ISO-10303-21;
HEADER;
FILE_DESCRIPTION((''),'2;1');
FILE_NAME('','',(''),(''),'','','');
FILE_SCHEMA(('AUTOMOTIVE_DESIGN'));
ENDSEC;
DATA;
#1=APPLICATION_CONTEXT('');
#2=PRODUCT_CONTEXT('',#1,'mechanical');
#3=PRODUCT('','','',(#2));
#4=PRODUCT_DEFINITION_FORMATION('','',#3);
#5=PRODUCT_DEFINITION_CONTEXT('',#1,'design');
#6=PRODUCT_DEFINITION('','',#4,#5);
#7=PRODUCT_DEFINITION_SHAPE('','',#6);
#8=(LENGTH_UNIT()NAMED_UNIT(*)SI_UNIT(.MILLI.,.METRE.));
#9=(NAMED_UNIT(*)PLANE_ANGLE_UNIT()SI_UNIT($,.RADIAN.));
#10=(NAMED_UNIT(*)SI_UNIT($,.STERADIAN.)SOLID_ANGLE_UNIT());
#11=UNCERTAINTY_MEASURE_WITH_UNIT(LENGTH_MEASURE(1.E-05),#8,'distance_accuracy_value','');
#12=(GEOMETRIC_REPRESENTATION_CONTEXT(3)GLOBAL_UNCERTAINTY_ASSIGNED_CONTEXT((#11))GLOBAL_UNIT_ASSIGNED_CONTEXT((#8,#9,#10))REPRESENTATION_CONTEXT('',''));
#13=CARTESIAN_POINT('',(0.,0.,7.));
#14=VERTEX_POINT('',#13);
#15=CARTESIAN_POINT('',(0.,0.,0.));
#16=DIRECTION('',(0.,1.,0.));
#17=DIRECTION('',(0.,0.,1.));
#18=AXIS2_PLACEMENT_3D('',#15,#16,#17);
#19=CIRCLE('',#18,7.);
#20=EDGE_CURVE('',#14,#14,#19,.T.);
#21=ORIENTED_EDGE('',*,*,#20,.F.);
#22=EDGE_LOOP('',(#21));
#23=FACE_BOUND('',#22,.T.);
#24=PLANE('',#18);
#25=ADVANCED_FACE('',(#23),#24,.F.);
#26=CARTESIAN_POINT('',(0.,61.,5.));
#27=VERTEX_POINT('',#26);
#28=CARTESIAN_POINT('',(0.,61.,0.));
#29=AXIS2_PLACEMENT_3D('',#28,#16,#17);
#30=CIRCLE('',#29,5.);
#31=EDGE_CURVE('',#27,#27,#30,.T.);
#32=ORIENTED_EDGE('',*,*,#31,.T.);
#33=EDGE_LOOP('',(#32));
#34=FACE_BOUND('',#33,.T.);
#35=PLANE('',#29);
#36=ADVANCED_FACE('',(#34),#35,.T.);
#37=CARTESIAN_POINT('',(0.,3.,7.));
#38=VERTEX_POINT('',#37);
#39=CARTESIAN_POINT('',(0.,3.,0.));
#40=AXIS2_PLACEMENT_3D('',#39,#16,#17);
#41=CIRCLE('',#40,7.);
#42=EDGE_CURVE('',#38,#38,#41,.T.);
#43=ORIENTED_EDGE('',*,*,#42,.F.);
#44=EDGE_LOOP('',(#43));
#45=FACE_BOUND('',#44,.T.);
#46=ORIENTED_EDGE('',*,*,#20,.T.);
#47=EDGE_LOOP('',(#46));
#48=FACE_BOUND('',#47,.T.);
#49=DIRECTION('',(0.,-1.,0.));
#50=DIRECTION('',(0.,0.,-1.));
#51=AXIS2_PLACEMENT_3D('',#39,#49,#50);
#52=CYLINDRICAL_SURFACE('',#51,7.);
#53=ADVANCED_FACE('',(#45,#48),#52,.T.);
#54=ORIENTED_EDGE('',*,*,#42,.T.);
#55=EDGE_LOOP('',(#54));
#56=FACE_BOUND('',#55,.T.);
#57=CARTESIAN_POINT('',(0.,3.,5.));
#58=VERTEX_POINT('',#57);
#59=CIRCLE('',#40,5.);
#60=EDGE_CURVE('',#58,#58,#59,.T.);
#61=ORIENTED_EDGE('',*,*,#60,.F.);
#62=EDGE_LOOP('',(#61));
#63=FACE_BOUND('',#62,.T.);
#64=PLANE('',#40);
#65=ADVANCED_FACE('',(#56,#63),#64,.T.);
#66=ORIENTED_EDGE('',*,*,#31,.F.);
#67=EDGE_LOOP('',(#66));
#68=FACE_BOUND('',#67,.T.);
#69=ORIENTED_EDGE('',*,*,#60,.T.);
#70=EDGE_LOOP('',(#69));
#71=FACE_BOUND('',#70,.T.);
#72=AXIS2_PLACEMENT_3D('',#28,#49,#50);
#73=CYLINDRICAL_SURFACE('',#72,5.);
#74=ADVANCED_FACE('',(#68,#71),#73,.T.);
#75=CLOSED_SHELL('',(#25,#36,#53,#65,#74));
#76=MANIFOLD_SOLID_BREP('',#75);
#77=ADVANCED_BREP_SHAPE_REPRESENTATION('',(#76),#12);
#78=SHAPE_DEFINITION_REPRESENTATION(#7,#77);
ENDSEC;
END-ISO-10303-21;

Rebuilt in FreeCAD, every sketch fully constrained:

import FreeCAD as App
import Part
import Sketcher

doc = App.newDocument("Part")
params = doc.addObject("Spreadsheet::Sheet", "Params")
for row, (alias, value) in enumerate([
    ("sketch1_diameter", "14 mm"),
    ("pad1_length", "3 mm"),
    ("sketch2_diameter", "10 mm"),
    ("pad2_length", "58 mm"),
], start=1):
    params.set(f"A{row}", alias)
    params.set(f"B{row}", "=" + value)
    params.setAlias(f"B{row}", alias)

body = doc.addObject("PartDesign::Body", "Body")

# Sketch on XZ plane
sketch1 = doc.addObject("Sketcher::SketchObject", "Sketch")
body.addObject(sketch1)
sketch1.AttachmentSupport = (doc.XZ_Plane, [""])
sketch1.MapMode = "FlatFace"
sketch1.addGeometry(Part.Circle(App.Vector(0, 0, 0), App.Vector(0, 0, 1), 7), False)
sketch1.addConstraint([
    Sketcher.Constraint("Coincident", 0, 3, -1, 1),
    Sketcher.Constraint("Diameter", 0, 14.0),
])
sketch1.setExpression("Constraints[1]", "Params.sketch1_diameter")
pad1 = doc.addObject("PartDesign::Pad", "Pad")
body.addObject(pad1)
pad1.Profile = sketch1
pad1.setExpression("Length", "Params.pad1_length")
pad1.Reversed = True

# Sketch on XZ plane
sketch2 = doc.addObject("Sketcher::SketchObject", "Sketch001")
body.addObject(sketch2)
sketch2.AttachmentSupport = (doc.XZ_Plane, [""])
sketch2.MapMode = "FlatFace"
sketch2.AttachmentOffset = App.Placement(App.Vector(0, 0, -3), App.Rotation())
sketch2.addGeometry(Part.Circle(App.Vector(0, 0, 0), App.Vector(0, 0, 1), 5), False)
sketch2.addConstraint([
    Sketcher.Constraint("Coincident", 0, 3, -1, 1),
    Sketcher.Constraint("Diameter", 0, 10.0),
])
sketch2.setExpression("Constraints[1]", "Params.sketch2_diameter")
pad2 = doc.addObject("PartDesign::Pad", "Pad001")
body.addObject(pad2)
pad2.Profile = sketch2
pad2.setExpression("Length", "Params.pad2_length")
pad2.Reversed = True

doc.recompute()
